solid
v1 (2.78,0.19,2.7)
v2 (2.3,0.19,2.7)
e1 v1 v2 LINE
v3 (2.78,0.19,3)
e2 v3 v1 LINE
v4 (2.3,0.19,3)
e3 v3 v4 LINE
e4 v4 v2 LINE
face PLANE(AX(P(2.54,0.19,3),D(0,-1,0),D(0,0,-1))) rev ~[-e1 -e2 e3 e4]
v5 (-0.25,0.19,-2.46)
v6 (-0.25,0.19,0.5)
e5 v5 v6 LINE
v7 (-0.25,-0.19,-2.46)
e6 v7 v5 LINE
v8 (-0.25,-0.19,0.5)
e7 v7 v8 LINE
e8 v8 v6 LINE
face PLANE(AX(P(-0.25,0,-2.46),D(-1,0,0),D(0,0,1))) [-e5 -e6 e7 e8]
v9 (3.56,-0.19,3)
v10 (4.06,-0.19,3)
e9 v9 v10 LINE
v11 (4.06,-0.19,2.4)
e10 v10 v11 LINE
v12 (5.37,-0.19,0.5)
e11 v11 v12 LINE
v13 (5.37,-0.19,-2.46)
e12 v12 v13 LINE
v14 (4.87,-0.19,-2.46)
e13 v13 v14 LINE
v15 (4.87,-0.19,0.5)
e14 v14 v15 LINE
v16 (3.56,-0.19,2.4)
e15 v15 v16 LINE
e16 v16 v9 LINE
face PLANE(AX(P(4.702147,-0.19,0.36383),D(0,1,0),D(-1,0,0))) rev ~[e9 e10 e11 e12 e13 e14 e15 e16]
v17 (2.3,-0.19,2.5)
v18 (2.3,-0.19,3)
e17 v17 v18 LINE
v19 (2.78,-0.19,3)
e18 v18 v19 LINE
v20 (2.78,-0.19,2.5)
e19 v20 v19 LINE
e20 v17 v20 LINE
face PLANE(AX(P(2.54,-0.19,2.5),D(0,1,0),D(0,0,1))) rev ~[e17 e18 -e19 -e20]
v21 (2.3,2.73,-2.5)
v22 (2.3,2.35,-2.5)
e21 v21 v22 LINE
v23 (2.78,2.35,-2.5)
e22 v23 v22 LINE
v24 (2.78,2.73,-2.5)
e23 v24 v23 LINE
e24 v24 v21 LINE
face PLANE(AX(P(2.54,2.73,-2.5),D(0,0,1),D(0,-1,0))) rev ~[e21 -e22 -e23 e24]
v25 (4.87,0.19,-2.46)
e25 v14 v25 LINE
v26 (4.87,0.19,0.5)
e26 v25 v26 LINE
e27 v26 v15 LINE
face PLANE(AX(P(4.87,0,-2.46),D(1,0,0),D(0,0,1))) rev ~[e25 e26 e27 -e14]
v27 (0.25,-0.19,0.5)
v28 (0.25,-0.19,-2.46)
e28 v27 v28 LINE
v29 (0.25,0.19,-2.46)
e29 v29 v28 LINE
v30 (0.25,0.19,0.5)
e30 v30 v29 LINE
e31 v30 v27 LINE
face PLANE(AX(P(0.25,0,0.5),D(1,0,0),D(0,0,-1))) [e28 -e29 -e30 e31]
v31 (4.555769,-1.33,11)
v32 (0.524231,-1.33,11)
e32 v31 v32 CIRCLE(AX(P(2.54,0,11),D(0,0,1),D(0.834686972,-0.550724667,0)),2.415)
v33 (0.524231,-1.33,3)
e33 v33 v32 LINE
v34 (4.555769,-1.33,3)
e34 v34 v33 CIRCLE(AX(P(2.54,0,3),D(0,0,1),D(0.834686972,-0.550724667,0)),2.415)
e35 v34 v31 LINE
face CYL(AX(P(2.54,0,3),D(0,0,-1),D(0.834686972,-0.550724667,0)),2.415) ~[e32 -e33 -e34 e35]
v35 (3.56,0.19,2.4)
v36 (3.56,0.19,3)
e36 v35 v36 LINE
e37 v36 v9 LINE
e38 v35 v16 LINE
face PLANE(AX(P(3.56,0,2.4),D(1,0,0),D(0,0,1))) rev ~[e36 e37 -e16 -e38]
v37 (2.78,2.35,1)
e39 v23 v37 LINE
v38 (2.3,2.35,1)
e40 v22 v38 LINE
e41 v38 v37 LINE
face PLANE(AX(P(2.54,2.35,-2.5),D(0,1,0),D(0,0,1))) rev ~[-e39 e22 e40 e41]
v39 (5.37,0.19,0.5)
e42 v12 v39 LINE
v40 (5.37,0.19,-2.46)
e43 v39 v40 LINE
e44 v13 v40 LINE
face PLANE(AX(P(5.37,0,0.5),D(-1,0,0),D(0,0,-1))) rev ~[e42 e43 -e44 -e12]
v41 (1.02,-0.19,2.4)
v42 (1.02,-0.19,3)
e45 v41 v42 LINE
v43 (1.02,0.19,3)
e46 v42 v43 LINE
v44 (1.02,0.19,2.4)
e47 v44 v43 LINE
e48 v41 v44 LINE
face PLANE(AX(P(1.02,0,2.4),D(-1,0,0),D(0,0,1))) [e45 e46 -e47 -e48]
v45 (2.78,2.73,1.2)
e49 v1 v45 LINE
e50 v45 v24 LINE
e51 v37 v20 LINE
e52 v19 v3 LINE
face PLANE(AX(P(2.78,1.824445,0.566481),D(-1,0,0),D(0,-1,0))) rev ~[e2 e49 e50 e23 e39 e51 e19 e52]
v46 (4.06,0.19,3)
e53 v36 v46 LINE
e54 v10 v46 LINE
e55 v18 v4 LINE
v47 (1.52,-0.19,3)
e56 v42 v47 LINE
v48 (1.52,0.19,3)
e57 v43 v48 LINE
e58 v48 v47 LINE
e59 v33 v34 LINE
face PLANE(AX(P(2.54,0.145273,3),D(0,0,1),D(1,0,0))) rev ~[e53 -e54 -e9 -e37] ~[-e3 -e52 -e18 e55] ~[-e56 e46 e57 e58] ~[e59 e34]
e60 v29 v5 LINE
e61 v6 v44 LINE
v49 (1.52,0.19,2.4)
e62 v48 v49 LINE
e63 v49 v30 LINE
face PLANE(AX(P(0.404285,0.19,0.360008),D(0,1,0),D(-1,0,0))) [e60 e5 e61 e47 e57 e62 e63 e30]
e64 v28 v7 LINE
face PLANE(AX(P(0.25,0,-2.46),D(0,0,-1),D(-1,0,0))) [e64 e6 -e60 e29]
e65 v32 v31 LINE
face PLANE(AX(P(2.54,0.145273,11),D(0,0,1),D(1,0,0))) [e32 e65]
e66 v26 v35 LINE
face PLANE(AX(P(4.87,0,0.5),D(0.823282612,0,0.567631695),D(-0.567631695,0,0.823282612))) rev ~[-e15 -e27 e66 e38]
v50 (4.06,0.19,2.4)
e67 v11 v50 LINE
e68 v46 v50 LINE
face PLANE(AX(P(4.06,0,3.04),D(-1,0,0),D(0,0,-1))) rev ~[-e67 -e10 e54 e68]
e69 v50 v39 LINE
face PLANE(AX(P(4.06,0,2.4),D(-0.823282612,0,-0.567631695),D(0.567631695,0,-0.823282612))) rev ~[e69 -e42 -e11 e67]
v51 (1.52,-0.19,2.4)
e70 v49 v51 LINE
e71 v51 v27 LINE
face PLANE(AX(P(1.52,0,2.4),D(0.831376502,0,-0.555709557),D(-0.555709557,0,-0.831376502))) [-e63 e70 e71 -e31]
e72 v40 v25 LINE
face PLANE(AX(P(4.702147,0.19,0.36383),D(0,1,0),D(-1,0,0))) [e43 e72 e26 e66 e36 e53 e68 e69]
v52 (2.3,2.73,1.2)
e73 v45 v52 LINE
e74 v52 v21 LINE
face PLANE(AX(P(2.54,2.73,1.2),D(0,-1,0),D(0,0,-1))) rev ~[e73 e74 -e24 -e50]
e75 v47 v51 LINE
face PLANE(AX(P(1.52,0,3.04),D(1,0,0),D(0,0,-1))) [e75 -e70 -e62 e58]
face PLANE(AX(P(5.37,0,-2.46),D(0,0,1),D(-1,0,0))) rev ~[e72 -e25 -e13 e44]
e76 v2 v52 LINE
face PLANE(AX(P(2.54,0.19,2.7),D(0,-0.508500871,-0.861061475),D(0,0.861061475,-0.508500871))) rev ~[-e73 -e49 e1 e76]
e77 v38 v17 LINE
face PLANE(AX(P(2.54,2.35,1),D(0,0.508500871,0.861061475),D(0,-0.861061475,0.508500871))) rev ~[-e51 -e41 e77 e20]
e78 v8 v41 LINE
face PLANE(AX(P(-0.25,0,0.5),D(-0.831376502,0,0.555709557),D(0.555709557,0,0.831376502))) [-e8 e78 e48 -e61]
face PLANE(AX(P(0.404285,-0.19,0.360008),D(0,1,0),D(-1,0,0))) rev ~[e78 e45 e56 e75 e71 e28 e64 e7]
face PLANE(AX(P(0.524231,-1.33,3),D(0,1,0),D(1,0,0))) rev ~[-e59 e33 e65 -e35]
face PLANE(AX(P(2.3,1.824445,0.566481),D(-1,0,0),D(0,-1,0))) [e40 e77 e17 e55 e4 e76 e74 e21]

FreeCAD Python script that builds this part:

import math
import FreeCAD as App
import Part
import Sketcher
from FreeCAD import Vector
Q = App.Units.Quantity


def add_polygon(sketch, points):
    """Adds a closed chain of lines whose ends are joined by coincident constraints."""
    first, n = sketch.GeometryCount, len(points)
    for a, b in zip(points, points[1:] + points[:1]):
        sketch.addGeometry(Part.LineSegment(App.Vector(*a, 0), App.Vector(*b, 0)), False)
    for i in range(n):
        sketch.addConstraint(Sketcher.Constraint("Coincident", first + i, 2, first + (i + 1) % n, 1))

doc = App.newDocument("Part")
body = doc.addObject("PartDesign::Body", "Body")
body.AllowCompound = True

sketch1 = body.newObject("Sketcher::SketchObject", "Sketch")
sketch1.AttachmentSupport = (doc.getObject("XZ_Plane"), [""])
sketch1.MapMode = "FlatFace"
add_polygon(sketch1, [(-0.25, -2.46), (0.25, -2.46), (0.25, 0.5), (1.52, 2.4), (1.52, 3.04), (1.02, 3.04), (1.02, 2.4), (-0.25, 0.5)])
add_polygon(sketch1, [(4.06, 3.04), (3.56, 3.04), (3.56, 2.4), (4.87, 0.5), (4.87, -2.46), (5.37, -2.46), (5.37, 0.5), (4.06, 2.4)])
sketch1.addConstraint([
    Sketcher.Constraint("Horizontal", 0),
    Sketcher.Constraint("Vertical", 1),
    Sketcher.Constraint("Vertical", 3),
    Sketcher.Constraint("Horizontal", 4),
    Sketcher.Constraint("Vertical", 5),
    Sketcher.Constraint("Vertical", 7),
    Sketcher.Constraint("Horizontal", 8),
    Sketcher.Constraint("Vertical", 9),
    Sketcher.Constraint("Vertical", 11),
    Sketcher.Constraint("Horizontal", 12),
    Sketcher.Constraint("Vertical", 13),
    Sketcher.Constraint("Vertical", 15),
    Sketcher.Constraint("Symmetric", 1, 2, 6, 2, -2),
    Sketcher.Constraint("Parallel", 2, 6),
    Sketcher.Constraint("Parallel", 10, 14),
    Sketcher.Constraint("Horizontal", 2, 2, 5, 2),
    Sketcher.Constraint("Horizontal", 4, 2, 8, 2),
    Sketcher.Constraint("Horizontal", 5, 2, 9, 2),
    Sketcher.Constraint("Horizontal", 6, 2, 10, 2),
    Sketcher.Constraint("Horizontal", 7, 2, 11, 2),
    Sketcher.Constraint("Horizontal", 10, 2, 13, 2),
    Sketcher.Constraint("Horizontal", 9, 2, 14, 2),
    Sketcher.Constraint("Equal", 4, 8),
    Sketcher.Constraint("DistanceX", 0, 1, 0, 2, Q("0.5 mm")),
    Sketcher.Constraint("DistanceY", 1, 1, 1, 2, Q("2.96 mm")),
    Sketcher.Constraint("DistanceY", 3, 1, 3, 2, Q("0.64 mm")),
    Sketcher.Constraint("DistanceY", -1, 1, 1, 2, Q("0.5 mm")),
    Sketcher.Constraint("DistanceY", -1, 1, 2, 2, Q("2.4 mm")),
    Sketcher.Constraint("DistanceX", -1, 1, 2, 2, Q("1.52 mm")),
    Sketcher.Constraint("DistanceX", -1, 1, 8, 2, Q("3.56 mm")),
    Sketcher.Constraint("DistanceX", -1, 1, 10, 2, Q("4.87 mm")),
])
pad1 = body.newObject("PartDesign::Pad", "Pad")
pad1.Profile = sketch1
pad1.Length = 0.38
pad1.Midplane = True
body2 = doc.addObject("PartDesign::Body", "Body001")

sketch2 = body2.newObject("Sketcher::SketchObject", "Sketch001")
sketch2.AttachmentSupport = (doc.getObject("XY_Plane001"), [""])
sketch2.MapMode = "FlatFace"
sketch2.AttachmentOffset = App.Placement(Vector(0, 0, 3), App.Rotation())
sketch2.addGeometry([
    Part.LineSegment(Vector(0.524231, -1.33, 0), Vector(4.555769, -1.33, 0)),
    Part.ArcOfCircle(Part.Circle(Vector(2.54, 0, 0), Vector(0, 0, 1), 2.415), math.radians(-33.416742), math.radians(213.416742)),
], False)
sketch2.addConstraint([
    Sketcher.Constraint("Coincident", 0, 1, 1, 2),
    Sketcher.Constraint("Coincident", 1, 1, 0, 2),
    Sketcher.Constraint("Horizontal", 0),
    Sketcher.Constraint("PointOnObject", 1, 3, -1),
    Sketcher.Constraint("Radius", 1, Q("2.415 mm")),
    Sketcher.Constraint("DistanceX", -1, 1, 1, 3, Q("2.54 mm")),
    Sketcher.Constraint("DistanceY", 0, 1, -1, 1, Q("1.33 mm")),
])
pad2 = body2.newObject("PartDesign::Pad", "Pad001")
pad2.Profile = sketch2
pad2.Length = 8
body3 = doc.addObject("PartDesign::Body", "Body002")
body3.AllowCompound = True

sketch3 = body3.newObject("Sketcher::SketchObject", "Sketch002")
sketch3.AttachmentSupport = (doc.getObject("YZ_Plane002"), [""])
sketch3.MapMode = "FlatFace"
sketch3.AttachmentOffset = App.Placement(Vector(0, 0, 2.54), App.Rotation())
add_polygon(sketch3, [(0.19, 3), (-0.19, 3), (-0.19, 2.5), (2.35, 1), (2.35, -2.5), (2.73, -2.5), (2.73, 1.2), (0.19, 2.7)])
sketch3.addConstraint([
    Sketcher.Constraint("Horizontal", 0),
    Sketcher.Constraint("Vertical", 1),
    Sketcher.Constraint("Vertical", 3),
    Sketcher.Constraint("Horizontal", 4),
    Sketcher.Constraint("Vertical", 5),
    Sketcher.Constraint("Vertical", 7),
    Sketcher.Constraint("Parallel", 2, 6),
    Sketcher.Constraint("Equal", 0, 4),
    Sketcher.Constraint("DistanceY", 1, 2, 1, 1, Q("0.5 mm")),
    Sketcher.Constraint("DistanceY", 3, 2, 3, 1, Q("3.5 mm")),
    Sketcher.Constraint("DistanceY", 5, 1, 5, 2, Q("3.7 mm")),
    Sketcher.Constraint("DistanceY", -1, 1, 0, 2, Q("3 mm")),
    Sketcher.Constraint("DistanceY", -1, 1, 2, 2, Q("1 mm")),
    Sketcher.Constraint("DistanceX", 0, 2, 0, 1, Q("0.38 mm")),
    Sketcher.Constraint("DistanceX", 0, 2, -1, 1, Q("0.19 mm")),
    Sketcher.Constraint("DistanceX", -1, 1, 2, 2, Q("2.35 mm")),
])
pad3 = body3.newObject("PartDesign::Pad", "Pad002")
pad3.Profile = sketch3
pad3.Length = 0.48
pad3.Midplane = True
doc.recompute()

boolean = body3.newObject("PartDesign::Boolean", "Boolean")
boolean.Type = "Fuse"
boolean.addObjects([body])
doc.recompute()

boolean2 = body3.newObject("PartDesign::Boolean", "Boolean001")
boolean2.Type = "Fuse"
boolean2.addObjects([body2])

doc.recompute()
